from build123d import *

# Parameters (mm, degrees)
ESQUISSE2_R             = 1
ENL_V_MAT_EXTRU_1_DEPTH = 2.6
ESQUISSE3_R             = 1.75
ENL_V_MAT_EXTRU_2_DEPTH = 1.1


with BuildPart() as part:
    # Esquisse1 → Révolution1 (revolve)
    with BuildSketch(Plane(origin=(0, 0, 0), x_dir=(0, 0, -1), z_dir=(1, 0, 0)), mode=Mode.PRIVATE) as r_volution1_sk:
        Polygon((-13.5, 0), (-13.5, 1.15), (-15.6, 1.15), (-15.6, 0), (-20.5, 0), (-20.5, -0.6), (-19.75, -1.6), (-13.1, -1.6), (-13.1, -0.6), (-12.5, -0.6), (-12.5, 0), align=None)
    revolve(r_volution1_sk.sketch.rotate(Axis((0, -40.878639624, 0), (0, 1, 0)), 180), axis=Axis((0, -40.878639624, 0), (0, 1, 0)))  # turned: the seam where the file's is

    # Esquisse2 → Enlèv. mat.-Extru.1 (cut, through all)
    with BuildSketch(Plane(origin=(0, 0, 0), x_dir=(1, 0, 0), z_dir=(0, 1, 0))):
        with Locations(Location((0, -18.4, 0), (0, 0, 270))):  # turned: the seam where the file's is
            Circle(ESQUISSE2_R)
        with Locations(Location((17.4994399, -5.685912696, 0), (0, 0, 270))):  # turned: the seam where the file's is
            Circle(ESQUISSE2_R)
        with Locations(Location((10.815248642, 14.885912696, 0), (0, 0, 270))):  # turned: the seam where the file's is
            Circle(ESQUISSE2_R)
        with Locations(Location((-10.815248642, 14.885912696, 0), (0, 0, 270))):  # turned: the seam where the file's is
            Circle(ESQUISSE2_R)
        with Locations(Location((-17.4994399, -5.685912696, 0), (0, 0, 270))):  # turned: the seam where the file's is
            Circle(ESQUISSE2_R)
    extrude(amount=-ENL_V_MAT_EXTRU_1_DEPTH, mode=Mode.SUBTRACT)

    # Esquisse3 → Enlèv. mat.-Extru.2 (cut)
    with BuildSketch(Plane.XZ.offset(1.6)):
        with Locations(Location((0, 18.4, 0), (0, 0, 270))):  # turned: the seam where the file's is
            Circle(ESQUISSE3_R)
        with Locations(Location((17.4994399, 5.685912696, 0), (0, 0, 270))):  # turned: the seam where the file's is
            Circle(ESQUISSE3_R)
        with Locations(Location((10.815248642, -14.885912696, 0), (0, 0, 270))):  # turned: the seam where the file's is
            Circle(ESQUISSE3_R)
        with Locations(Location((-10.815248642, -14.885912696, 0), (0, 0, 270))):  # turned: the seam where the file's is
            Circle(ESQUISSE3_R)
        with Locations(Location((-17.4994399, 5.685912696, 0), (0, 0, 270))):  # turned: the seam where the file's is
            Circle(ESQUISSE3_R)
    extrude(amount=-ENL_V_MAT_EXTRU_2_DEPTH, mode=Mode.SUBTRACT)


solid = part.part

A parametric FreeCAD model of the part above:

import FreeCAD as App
import Part
import Sketcher
from FreeCAD import Vector

doc = App.newDocument("Part")
body = doc.addObject("PartDesign::Body", "Body")

# Sketch on YZ plane
sketch1 = body.newObject("Sketcher::SketchObject", "Sketch")
sketch1.AttachmentSupport = (doc.getObject("YZ_Plane"), [""])
sketch1.MapMode = "FlatFace"
sketch1.addGeometry([
    Part.LineSegment(Vector(0, 13.5, 0), Vector(1.1, 13.5, 0)),  # 0
    Part.LineSegment(Vector(1.1, 13.5, 0), Vector(1.1, 15.6, 0)),  # 1
    Part.LineSegment(Vector(1.1, 15.6, 0), Vector(0, 15.6, 0)),  # 2
    Part.LineSegment(Vector(0, 15.6, 0), Vector(0, 20.5, 0)),  # 3
    Part.LineSegment(Vector(0, 20.5, 0), Vector(-0.6, 20.5, 0)),  # 4
    Part.LineSegment(Vector(-0.6, 20.5, 0), Vector(-1.6, 19.8, 0)),  # 5
    Part.LineSegment(Vector(-1.6, 19.8, 0), Vector(-1.6, 13.1, 0)),  # 6
    Part.LineSegment(Vector(-1.6, 13.1, 0), Vector(-0.6, 13.1, 0)),  # 7
    Part.LineSegment(Vector(-0.6, 13.1, 0), Vector(-0.6, 12.5, 0)),  # 8
    Part.LineSegment(Vector(-0.6, 12.5, 0), Vector(0, 12.5, 0)),  # 9
    Part.LineSegment(Vector(0, 12.5, 0), Vector(0, 13.5, 0)),  # 10
], False)
sketch1.addConstraint([
    Sketcher.Constraint("Coincident", 0, 2, 1, 1),
    Sketcher.Constraint("Coincident", 1, 2, 2, 1),
    Sketcher.Constraint("Coincident", 2, 2, 3, 1),
    Sketcher.Constraint("Coincident", 3, 2, 4, 1),
    Sketcher.Constraint("Coincident", 4, 2, 5, 1),
    Sketcher.Constraint("Coincident", 5, 2, 6, 1),
    Sketcher.Constraint("Coincident", 6, 2, 7, 1),
    Sketcher.Constraint("Coincident", 7, 2, 8, 1),
    Sketcher.Constraint("Coincident", 8, 2, 9, 1),
    Sketcher.Constraint("Coincident", 9, 2, 10, 1),
    Sketcher.Constraint("Coincident", 10, 2, 0, 1),
    Sketcher.Constraint("Horizontal", 0),
    Sketcher.Constraint("Vertical", 1),
    Sketcher.Constraint("Horizontal", 2),
    Sketcher.Constraint("Vertical", 3),
    Sketcher.Constraint("Horizontal", 4),
    Sketcher.Constraint("Vertical", 6),
    Sketcher.Constraint("Horizontal", 7),
    Sketcher.Constraint("Vertical", 8),
    Sketcher.Constraint("Horizontal", 9),
    Sketcher.Constraint("Vertical", 10),
    Sketcher.Constraint("PointOnObject", 2, 2, -2),
    Sketcher.Constraint("PointOnObject", 9, 2, -2),
    Sketcher.Constraint("Vertical", 4, 2, 7, 2),
    Sketcher.Constraint("Equal", 9, 8),
    Sketcher.Constraint("Equal", 7, 10),
    Sketcher.Constraint("DistanceX", 7, 1, 7, 2, 1.0),
    Sketcher.Constraint("DistanceX", 4, 2, 4, 1, 0.6),
    Sketcher.Constraint("DistanceY", 1, 1, 1, 2, 2.1),
    Sketcher.Constraint("DistanceY", 3, 1, 3, 2, 4.9),
    Sketcher.Constraint("DistanceX", 0, 1, 0, 2, 1.15),
    Sketcher.Constraint("DistanceY", 6, 2, 6, 1, 6.65),
    Sketcher.Constraint("DistanceY", -1, 1, 0, 2, 13.5),
])
revolution = body.newObject("PartDesign::Revolution", "Revolution")
revolution.Profile = sketch1
revolution.ReferenceAxis = (sketch1, ["H_Axis"])
revolution.Angle = 360

# Sketch on XZ plane
sketch2 = body.newObject("Sketcher::SketchObject", "Sketch001")
sketch2.AttachmentSupport = (doc.getObject("XZ_Plane"), [""])
sketch2.MapMode = "FlatFace"
sketch2.addGeometry([
    Part.Circle(Vector(0, 18.4, 0), Vector(0, 0, 1), 1),  # 0
    Part.Circle(Vector(17.5, 5.7, 0), Vector(0, 0, 1), 1),  # 1
    Part.Circle(Vector(10.8, -14.9, 0), Vector(0, 0, 1), 1),  # 2
    Part.Circle(Vector(-10.8, -14.9, 0), Vector(0, 0, 1), 1),  # 3
    Part.Circle(Vector(-17.5, 5.7, 0), Vector(0, 0, 1), 1),  # 4
], False)
sketch2.addConstraint([
    Sketcher.Constraint("Equal", 0, 1),
    Sketcher.Constraint("Equal", 1, 2),
    Sketcher.Constraint("Equal", 2, 3),
    Sketcher.Constraint("Equal", 3, 4),
    Sketcher.Constraint("Symmetric", 2, 3, 3, 3, -2),
    Sketcher.Constraint("Symmetric", 1, 3, 4, 3, -2),
    Sketcher.Constraint("PointOnObject", 0, 3, -2),
    Sketcher.Constraint("Diameter", 0, 2.0),
    Sketcher.Constraint("DistanceY", -1, 1, 0, 3, 18.4),
    Sketcher.Constraint("DistanceX", -1, 1, 1, 3, 17.49944),
    Sketcher.Constraint("DistanceX", -1, 1, 2, 3, 10.815249),
    Sketcher.Constraint("DistanceY", -1, 1, 1, 3, 5.685913),
    Sketcher.Constraint("DistanceY", 2, 3, -1, 1, 14.885913),
])
pocket1 = body.newObject("PartDesign::Pocket", "Pocket")
pocket1.Profile = sketch2
pocket1.Type = "ThroughAll"
pocket1.Reversed = True

# Sketch on XZ plane
sketch3 = body.newObject("Sketcher::SketchObject", "Sketch002")
sketch3.AttachmentSupport = (doc.getObject("XZ_Plane"), [""])
sketch3.MapMode = "FlatFace"
sketch3.AttachmentOffset = App.Placement(Vector(0, 0, 1.6), App.Rotation())
sketch3.addGeometry([
    Part.Circle(Vector(0, 18.4, 0), Vector(0, 0, 1), 1.8),  # 0
    Part.Circle(Vector(17.5, 5.7, 0), Vector(0, 0, 1), 1.8),  # 1
    Part.Circle(Vector(10.8, -14.9, 0), Vector(0, 0, 1), 1.8),  # 2
    Part.Circle(Vector(-10.8, -14.9, 0), Vector(0, 0, 1), 1.8),  # 3
    Part.Circle(Vector(-17.5, 5.7, 0), Vector(0, 0, 1), 1.8),  # 4
], False)
sketch3.addConstraint([
    Sketcher.Constraint("Equal", 0, 1),
    Sketcher.Constraint("Equal", 1, 2),
    Sketcher.Constraint("Equal", 2, 3),
    Sketcher.Constraint("Equal", 3, 4),
    Sketcher.Constraint("Symmetric", 2, 3, 3, 3, -2),
    Sketcher.Constraint("Symmetric", 1, 3, 4, 3, -2),
    Sketcher.Constraint("PointOnObject", 0, 3, -2),
    Sketcher.Constraint("Diameter", 0, 3.5),
    Sketcher.Constraint("DistanceY", -1, 1, 0, 3, 18.4),
    Sketcher.Constraint("DistanceX", -1, 1, 1, 3, 17.49944),
    Sketcher.Constraint("DistanceX", -1, 1, 2, 3, 10.815249),
    Sketcher.Constraint("DistanceY", -1, 1, 1, 3, 5.685913),
    Sketcher.Constraint("DistanceY", 2, 3, -1, 1, 14.885913),
])
pocket2 = body.newObject("PartDesign::Pocket", "Pocket001")
pocket2.Profile = sketch3
pocket2.Length = 1.1

doc.recompute()
